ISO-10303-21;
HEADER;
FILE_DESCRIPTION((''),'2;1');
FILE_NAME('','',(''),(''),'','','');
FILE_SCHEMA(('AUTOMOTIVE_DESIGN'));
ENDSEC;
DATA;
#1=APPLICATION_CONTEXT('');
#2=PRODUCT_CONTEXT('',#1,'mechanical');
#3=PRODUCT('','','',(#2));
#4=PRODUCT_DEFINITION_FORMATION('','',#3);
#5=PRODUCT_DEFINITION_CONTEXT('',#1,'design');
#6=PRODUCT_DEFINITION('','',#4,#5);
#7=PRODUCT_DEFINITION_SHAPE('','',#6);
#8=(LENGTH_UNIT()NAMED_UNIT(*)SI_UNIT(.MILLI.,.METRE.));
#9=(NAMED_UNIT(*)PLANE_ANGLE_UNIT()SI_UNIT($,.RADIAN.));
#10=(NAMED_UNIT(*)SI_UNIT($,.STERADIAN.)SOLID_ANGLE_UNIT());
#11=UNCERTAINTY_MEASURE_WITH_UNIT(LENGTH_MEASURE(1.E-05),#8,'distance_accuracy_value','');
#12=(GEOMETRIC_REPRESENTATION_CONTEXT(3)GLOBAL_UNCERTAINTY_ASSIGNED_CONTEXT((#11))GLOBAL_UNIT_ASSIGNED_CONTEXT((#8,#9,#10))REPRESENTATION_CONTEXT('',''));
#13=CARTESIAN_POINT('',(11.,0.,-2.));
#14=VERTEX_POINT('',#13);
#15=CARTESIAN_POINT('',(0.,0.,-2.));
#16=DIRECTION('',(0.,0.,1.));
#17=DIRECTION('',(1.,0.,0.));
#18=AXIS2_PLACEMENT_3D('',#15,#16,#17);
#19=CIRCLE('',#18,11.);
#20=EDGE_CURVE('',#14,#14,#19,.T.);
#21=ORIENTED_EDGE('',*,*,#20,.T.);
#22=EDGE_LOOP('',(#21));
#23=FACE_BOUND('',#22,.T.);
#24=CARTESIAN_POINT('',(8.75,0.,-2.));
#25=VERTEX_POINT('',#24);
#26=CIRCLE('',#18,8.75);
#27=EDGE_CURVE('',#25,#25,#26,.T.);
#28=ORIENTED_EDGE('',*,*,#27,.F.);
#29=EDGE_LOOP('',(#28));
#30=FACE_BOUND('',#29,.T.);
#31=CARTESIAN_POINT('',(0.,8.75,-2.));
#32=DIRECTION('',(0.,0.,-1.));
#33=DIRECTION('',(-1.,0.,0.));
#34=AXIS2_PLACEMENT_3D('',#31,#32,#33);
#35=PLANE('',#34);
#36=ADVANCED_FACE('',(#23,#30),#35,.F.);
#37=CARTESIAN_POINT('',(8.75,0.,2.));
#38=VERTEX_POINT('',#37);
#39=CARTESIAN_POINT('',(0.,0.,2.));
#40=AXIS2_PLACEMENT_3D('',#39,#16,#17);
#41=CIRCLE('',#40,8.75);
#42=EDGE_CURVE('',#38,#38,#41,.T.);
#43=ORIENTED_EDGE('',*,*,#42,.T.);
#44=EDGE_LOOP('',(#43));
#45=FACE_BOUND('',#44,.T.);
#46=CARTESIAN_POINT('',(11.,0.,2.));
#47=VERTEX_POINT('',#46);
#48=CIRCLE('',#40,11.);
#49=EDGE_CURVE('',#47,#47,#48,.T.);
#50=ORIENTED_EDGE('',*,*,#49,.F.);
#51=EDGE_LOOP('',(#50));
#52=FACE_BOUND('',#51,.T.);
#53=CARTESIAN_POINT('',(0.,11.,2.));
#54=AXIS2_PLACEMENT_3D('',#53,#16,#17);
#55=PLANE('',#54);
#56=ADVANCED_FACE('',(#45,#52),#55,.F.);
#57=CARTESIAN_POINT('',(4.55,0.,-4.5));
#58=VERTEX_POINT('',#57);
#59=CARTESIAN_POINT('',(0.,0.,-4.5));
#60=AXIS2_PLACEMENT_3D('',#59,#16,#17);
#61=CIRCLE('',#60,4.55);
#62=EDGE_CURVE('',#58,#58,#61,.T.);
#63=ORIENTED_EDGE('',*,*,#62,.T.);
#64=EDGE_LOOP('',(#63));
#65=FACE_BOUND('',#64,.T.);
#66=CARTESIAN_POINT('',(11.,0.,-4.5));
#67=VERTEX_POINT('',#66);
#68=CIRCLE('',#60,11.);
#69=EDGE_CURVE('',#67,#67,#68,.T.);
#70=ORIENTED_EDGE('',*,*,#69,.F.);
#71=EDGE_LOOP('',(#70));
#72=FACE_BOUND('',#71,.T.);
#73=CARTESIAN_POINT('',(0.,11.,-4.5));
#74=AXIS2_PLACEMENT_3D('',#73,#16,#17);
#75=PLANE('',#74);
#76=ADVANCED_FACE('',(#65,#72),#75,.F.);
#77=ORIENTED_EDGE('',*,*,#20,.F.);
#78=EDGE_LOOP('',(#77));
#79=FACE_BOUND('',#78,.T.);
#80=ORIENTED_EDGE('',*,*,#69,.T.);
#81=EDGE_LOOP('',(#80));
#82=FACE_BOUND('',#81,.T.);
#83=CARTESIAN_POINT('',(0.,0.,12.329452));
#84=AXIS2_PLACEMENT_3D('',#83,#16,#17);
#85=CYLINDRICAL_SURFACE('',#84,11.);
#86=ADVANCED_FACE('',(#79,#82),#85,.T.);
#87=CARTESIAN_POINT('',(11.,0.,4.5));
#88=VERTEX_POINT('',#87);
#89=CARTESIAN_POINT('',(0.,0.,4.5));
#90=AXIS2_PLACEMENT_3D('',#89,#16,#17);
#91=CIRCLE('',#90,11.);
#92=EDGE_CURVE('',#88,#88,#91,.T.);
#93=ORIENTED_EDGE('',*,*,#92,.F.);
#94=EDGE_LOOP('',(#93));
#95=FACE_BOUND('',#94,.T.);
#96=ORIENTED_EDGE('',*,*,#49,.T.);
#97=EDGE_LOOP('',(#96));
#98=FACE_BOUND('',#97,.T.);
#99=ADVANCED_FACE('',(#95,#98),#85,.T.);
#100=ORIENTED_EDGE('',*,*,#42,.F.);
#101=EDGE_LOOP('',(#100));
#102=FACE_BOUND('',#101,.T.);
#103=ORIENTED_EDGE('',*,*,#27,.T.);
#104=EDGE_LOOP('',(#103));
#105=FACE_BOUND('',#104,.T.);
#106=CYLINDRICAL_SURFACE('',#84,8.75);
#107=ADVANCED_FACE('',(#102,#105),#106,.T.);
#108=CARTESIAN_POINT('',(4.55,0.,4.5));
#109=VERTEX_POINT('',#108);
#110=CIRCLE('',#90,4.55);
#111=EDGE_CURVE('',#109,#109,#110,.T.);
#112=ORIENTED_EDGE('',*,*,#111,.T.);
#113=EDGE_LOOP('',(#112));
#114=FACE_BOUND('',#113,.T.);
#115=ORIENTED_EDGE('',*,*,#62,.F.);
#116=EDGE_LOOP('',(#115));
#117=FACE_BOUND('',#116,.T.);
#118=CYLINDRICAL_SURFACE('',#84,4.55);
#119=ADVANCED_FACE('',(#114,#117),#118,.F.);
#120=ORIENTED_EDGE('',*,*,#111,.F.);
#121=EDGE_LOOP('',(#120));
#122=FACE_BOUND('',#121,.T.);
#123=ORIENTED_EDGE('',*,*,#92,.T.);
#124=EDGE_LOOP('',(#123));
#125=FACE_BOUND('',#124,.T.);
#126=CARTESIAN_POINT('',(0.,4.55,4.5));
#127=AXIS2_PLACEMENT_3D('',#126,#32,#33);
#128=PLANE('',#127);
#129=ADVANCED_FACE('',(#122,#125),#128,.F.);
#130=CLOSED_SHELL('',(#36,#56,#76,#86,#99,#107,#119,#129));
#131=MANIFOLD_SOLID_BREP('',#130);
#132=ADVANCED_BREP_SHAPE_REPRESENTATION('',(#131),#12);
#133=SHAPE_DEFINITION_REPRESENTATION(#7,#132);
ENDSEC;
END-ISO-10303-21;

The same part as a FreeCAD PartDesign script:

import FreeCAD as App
import Part
import Sketcher

V = App.Vector

doc = App.newDocument("Part")
body = doc.addObject("PartDesign::Body", "Body")

# Sketch on YZ plane
sketch1 = doc.addObject("Sketcher::SketchObject", "Sketch")
body.addObject(sketch1)
sketch1.AttachmentSupport = (doc.YZ_Plane, [""])
sketch1.MapMode = "FlatFace"
sketch1.addGeometry([
    Part.LineSegment(V(11, 2, 0), V(11, 4.5, 0)),  # 0
    Part.LineSegment(V(11, 4.5, 0), V(4.5, 4.5, 0)),  # 1
    Part.LineSegment(V(4.5, 4.5, 0), V(4.5, -4.5, 0)),  # 2
    Part.LineSegment(V(4.5, -4.5, 0), V(11, -4.5, 0)),  # 3
    Part.LineSegment(V(11, -4.5, 0), V(11, -2, 0)),  # 4
    Part.LineSegment(V(11, -2, 0), V(8.8, -2, 0)),  # 5
    Part.LineSegment(V(8.8, -2, 0), V(8.8, 2, 0)),  # 6
    Part.LineSegment(V(8.8, 2, 0), V(11, 2, 0)),  # 7
], False)
sketch1.addConstraint([
    Sketcher.Constraint("Coincident", 0, 2, 1, 1),
    Sketcher.Constraint("Coincident", 1, 2, 2, 1),
    Sketcher.Constraint("Coincident", 2, 2, 3, 1),
    Sketcher.Constraint("Coincident", 3, 2, 4, 1),
    Sketcher.Constraint("Coincident", 4, 2, 5, 1),
    Sketcher.Constraint("Coincident", 5, 2, 6, 1),
    Sketcher.Constraint("Coincident", 6, 2, 7, 1),
    Sketcher.Constraint("Coincident", 7, 2, 0, 1),
    Sketcher.Constraint("Vertical", 0),
    Sketcher.Constraint("Horizontal", 1),
    Sketcher.Constraint("Vertical", 2),
    Sketcher.Constraint("Horizontal", 3),
    Sketcher.Constraint("Vertical", 4),
    Sketcher.Constraint("Horizontal", 5),
    Sketcher.Constraint("Vertical", 6),
    Sketcher.Constraint("Horizontal", 7),
    Sketcher.Constraint("Symmetric", 0, 2, 3, 2, -1),
    Sketcher.Constraint("Equal", 0, 4),
    Sketcher.Constraint("DistanceY", 2, 2, 2, 1, 9.0),
    Sketcher.Constraint("DistanceY", 6, 1, 6, 2, 4.0),
    Sketcher.Constraint("DistanceX", -1, 1, 0, 2, 11.0),
    Sketcher.Constraint("DistanceX", 1, 2, 1, 1, 6.45),
    Sketcher.Constraint("DistanceX", 5, 2, 5, 1, 2.25),
])
revolution = doc.addObject("PartDesign::Revolution", "Revolution")
body.addObject(revolution)
revolution.Profile = sketch1
revolution.ReferenceAxis = (sketch1, ["V_Axis"])
revolution.Angle = 360

doc.recompute()
